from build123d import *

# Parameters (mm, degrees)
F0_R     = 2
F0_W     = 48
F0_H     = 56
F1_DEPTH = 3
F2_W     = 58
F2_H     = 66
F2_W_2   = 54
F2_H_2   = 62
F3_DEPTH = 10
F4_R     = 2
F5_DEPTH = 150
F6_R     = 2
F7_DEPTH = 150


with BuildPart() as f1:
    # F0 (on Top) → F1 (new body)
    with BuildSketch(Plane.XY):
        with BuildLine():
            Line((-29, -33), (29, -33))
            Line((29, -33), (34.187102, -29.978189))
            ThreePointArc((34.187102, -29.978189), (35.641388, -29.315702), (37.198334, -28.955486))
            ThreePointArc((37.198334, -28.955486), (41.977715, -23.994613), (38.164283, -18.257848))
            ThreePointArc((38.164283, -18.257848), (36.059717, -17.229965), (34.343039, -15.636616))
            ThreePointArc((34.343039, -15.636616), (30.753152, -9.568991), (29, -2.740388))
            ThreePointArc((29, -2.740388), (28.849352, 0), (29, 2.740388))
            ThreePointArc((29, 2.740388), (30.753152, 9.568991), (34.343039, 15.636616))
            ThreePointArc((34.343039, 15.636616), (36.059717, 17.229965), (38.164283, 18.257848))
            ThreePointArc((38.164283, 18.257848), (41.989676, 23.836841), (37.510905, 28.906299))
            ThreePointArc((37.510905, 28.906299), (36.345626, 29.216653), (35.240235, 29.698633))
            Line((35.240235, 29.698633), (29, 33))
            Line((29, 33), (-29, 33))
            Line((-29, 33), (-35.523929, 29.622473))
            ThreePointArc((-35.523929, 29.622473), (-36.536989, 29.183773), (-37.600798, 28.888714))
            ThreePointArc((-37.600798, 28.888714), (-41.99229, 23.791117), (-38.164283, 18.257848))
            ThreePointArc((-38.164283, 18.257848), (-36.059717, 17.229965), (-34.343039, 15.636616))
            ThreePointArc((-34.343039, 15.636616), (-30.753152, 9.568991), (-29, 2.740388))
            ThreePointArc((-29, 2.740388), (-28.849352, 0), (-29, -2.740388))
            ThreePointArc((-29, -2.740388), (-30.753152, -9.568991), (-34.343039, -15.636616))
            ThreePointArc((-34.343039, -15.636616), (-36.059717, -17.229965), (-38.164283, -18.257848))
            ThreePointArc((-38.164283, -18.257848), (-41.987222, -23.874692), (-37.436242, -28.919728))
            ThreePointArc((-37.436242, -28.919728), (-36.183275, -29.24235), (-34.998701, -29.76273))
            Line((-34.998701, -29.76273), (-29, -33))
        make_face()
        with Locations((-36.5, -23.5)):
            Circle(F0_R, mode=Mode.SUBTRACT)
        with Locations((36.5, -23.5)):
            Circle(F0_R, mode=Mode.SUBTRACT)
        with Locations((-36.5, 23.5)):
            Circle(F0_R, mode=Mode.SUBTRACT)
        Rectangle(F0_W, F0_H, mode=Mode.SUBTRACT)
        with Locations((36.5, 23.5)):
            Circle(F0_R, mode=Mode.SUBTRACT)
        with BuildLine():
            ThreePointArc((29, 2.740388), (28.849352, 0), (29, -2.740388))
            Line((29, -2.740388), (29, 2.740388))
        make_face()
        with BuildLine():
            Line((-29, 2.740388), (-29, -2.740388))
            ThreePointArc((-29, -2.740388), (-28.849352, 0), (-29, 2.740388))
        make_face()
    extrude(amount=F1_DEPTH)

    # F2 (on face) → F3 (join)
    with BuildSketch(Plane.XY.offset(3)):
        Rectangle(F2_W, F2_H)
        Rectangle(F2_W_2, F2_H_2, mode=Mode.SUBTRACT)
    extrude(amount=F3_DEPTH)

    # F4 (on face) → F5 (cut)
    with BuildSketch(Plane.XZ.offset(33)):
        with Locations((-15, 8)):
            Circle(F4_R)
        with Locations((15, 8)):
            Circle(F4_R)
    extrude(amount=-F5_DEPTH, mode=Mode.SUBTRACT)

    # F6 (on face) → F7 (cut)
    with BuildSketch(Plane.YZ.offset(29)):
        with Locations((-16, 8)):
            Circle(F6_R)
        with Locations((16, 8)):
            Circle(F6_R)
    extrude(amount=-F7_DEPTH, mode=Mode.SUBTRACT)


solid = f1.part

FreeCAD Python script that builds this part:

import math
import FreeCAD as App
import Part
import Sketcher
from FreeCAD import Vector


def add_polygon(sketch, points):
    """Adds a closed chain of lines whose ends are joined by coincident constraints."""
    first, n = sketch.GeometryCount, len(points)
    for a, b in zip(points, points[1:] + points[:1]):
        sketch.addGeometry(Part.LineSegment(App.Vector(*a, 0), App.Vector(*b, 0)), False)
    for i in range(n):
        sketch.addConstraint(Sketcher.Constraint("Coincident", first + i, 2, first + (i + 1) % n, 1))

doc = App.newDocument("Part")
body = doc.addObject("PartDesign::Body", "Body")

# Sketch on XY plane
sketch1 = body.newObject("Sketcher::SketchObject", "Sketch")
sketch1.AttachmentSupport = (doc.getObject("XY_Plane"), [""])
sketch1.MapMode = "FlatFace"
sketch1.addGeometry(Part.LineSegment(Vector(-29, -33, 0), Vector(29, -33, 0)), False)  # 0
sketch1.addGeometry(Part.LineSegment(Vector(29, -33, 0), Vector(34.187102, -29.978189, 0)), False)  # 1
sketch1.addGeometry(Part.ArcOfCircle(Part.Circle(Vector(38.214102, -36.890765, 0), Vector(0, 0, 1), 8.000027), math.radians(97.294569), math.radians(120.223429)), False)  # 2
sketch1.addGeometry(Part.ArcOfCircle(Part.Circle(Vector(36.500001, -23.5, 0), Vector(0, 0, 1), 5.5), math.radians(-82.705483), math.radians(72.386361)), False)  # 3
sketch1.addGeometry(Part.ArcOfCircle(Part.Circle(Vector(40.58506, -10.632899, 0), Vector(0, 0, 1), 8.000001), math.radians(-141.283704), math.radians(-107.613658)), False)  # 4
sketch1.addGeometry(Part.ArcOfCircle(Part.Circle(Vector(53.849338, -0.000005, 0), Vector(0, 0, 1), 24.999986), math.radians(-173.706856), math.radians(-141.283691)), False)  # 5
sketch1.addGeometry(Part.LineSegment(Vector(29, -2.740388, 0), Vector(29, 2.740388, 0)), False)  # 6
sketch1.addGeometry(Part.ArcOfCircle(Part.Circle(Vector(53.849338, 0.000005, 0), Vector(0, 0, 1), 24.999986), math.radians(141.283691), math.radians(173.706856)), False)  # 7
sketch1.addGeometry(Part.ArcOfCircle(Part.Circle(Vector(40.58506, 10.632899, 0), Vector(0, 0, 1), 8.000001), math.radians(107.613658), math.radians(141.283704)), False)  # 8
sketch1.addGeometry(Part.ArcOfCircle(Part.Circle(Vector(36.500001, 23.5, 0), Vector(0, 0, 1), 5.499999), math.radians(-72.386362), math.radians(79.408778)), False)  # 9
sketch1.addGeometry(Part.ArcOfCircle(Part.Circle(Vector(38.981308, 36.769988, 0), Vector(0, 0, 1), 7.99998), math.radians(-117.880907), math.radians(-100.591227)), False)  # 10
sketch1.addGeometry(Part.LineSegment(Vector(35.240235, 29.698633, 0), Vector(29, 33, 0)), False)  # 11
sketch1.addGeometry(Part.LineSegment(Vector(29, 33, 0), Vector(-29, 33, 0)), False)  # 12
sketch1.addGeometry(Part.LineSegment(Vector(-29, 33, 0), Vector(-35.523929, 29.622473, 0)), False)  # 13
sketch1.addGeometry(Part.ArcOfCircle(Part.Circle(Vector(-39.201982, 36.726905, 0), Vector(0, 0, 1), 8.000065), math.radians(-78.454479), math.radians(-62.628834)), False)  # 14
sketch1.addGeometry(Part.ArcOfCircle(Part.Circle(Vector(-36.5, 23.5, 0), Vector(0, 0, 1), 5.499999), math.radians(101.54544), math.radians(252.386356)), False)  # 15
sketch1.addGeometry(Part.ArcOfCircle(Part.Circle(Vector(-40.58506, 10.632899, 0), Vector(0, 0, 1), 8.000001), math.radians(38.716296), math.radians(72.386342)), False)  # 16
sketch1.addGeometry(Part.ArcOfCircle(Part.Circle(Vector(-53.849338, 0.000005, 0), Vector(0, 0, 1), 24.999986), math.radians(6.293144), math.radians(38.716309)), False)  # 17
sketch1.addGeometry(Part.LineSegment(Vector(-29, 2.740388, 0), Vector(-29, -2.740388, 0)), False)  # 18
sketch1.addGeometry(Part.ArcOfCircle(Part.Circle(Vector(-53.849338, -0.000005, 0), Vector(0, 0, 1), 24.999986), math.radians(-38.716309), math.radians(-6.293144)), False)  # 19
sketch1.addGeometry(Part.ArcOfCircle(Part.Circle(Vector(-40.58506, -10.632899, 0), Vector(0, 0, 1), 8.000001), math.radians(-72.386342), math.radians(-38.716296)), False)  # 20
sketch1.addGeometry(Part.ArcOfCircle(Part.Circle(Vector(-36.5, -23.5, 0), Vector(0, 0, 1), 5.5), math.radians(107.613646), math.radians(260.199052)), False)  # 21
sketch1.addGeometry(Part.ArcOfCircle(Part.Circle(Vector(-38.798058, -36.802996, 0), Vector(0, 0, 1), 8.000029), math.radians(61.645996), math.radians(80.19902)), False)  # 22
sketch1.addGeometry(Part.LineSegment(Vector(-34.998701, -29.76273, 0), Vector(-29, -33, 0)), False)  # 23
sketch1.addGeometry(Part.Circle(Vector(-36.5, -23.5, 0), Vector(0, 0, 1), 2), False)  # 24
sketch1.addGeometry(Part.Circle(Vector(36.5, -23.5, 0), Vector(0, 0, 1), 2), False)  # 25
sketch1.addGeometry(Part.Circle(Vector(-36.5, 23.5, 0), Vector(0, 0, 1), 2), False)  # 26
add_polygon(sketch1, [(24, -28), (-24, -28), (-24, 28), (24, 28)])  # lines 27-30
sketch1.addGeometry(Part.Circle(Vector(36.5, 23.5, 0), Vector(0, 0, 1), 2), False)  # 31
sketch1.addConstraint([
    Sketcher.Constraint("Coincident", 0, 2, 1, 1),
    Sketcher.Constraint("Coincident", 1, 2, 2, 2),
    Sketcher.Constraint("Coincident", 2, 1, 3, 1),
    Sketcher.Constraint("Coincident", 3, 2, 4, 2),
    Sketcher.Constraint("Coincident", 4, 1, 5, 2),
    Sketcher.Constraint("Coincident", 5, 1, 6, 1),
    Sketcher.Constraint("Coincident", 6, 2, 7, 2),
    Sketcher.Constraint("Coincident", 7, 1, 8, 2),
    Sketcher.Constraint("Coincident", 8, 1, 9, 1),
    Sketcher.Constraint("Coincident", 9, 2, 10, 2),
    Sketcher.Constraint("Coincident", 10, 1, 11, 1),
    Sketcher.Constraint("Coincident", 11, 2, 12, 1),
    Sketcher.Constraint("Coincident", 12, 2, 13, 1),
    Sketcher.Constraint("Coincident", 13, 2, 14, 2),
    Sketcher.Constraint("Coincident", 14, 1, 15, 1),
    Sketcher.Constraint("Coincident", 15, 2, 16, 2),
    Sketcher.Constraint("Coincident", 16, 1, 17, 2),
    Sketcher.Constraint("Coincident", 17, 1, 18, 1),
    Sketcher.Constraint("Coincident", 18, 2, 19, 2),
    Sketcher.Constraint("Coincident", 19, 1, 20, 2),
    Sketcher.Constraint("Coincident", 20, 1, 21, 1),
    Sketcher.Constraint("Coincident", 21, 2, 22, 2),
    Sketcher.Constraint("Coincident", 22, 1, 23, 1),
    Sketcher.Constraint("Coincident", 23, 2, 0, 1),
    Sketcher.Constraint("Horizontal", 0),
    Sketcher.Constraint("Vertical", 6),
    Sketcher.Constraint("Horizontal", 12),
    Sketcher.Constraint("Vertical", 18),
    Sketcher.Constraint("Horizontal", 27),
    Sketcher.Constraint("Vertical", 28),
    Sketcher.Constraint("Horizontal", 29),
    Sketcher.Constraint("Vertical", 30),
    Sketcher.Constraint("Coincident", 24, 3, 21, 3),
    Sketcher.Constraint("Coincident", 25, 3, 3, 3),
    Sketcher.Constraint("Coincident", 26, 3, 15, 3),
    Sketcher.Constraint("Coincident", 31, 3, 9, 3),
    Sketcher.Constraint("Diameter", 24, 4.0),
    Sketcher.Constraint("Diameter", 25, 4.0),
    Sketcher.Constraint("Diameter", 26, 4.0),
    Sketcher.Constraint("Diameter", 31, 4.0),
    Sketcher.Constraint("Radius", 4, 8.000001),
    Sketcher.Constraint("Radius", 8, 8.000001),
    Sketcher.Constraint("Radius", 16, 8.000001),
    Sketcher.Constraint("Radius", 20, 8.000001),
    Sketcher.Constraint("Radius", 3, 5.5),
    Sketcher.Constraint("Radius", 9, 5.499999),
    Sketcher.Constraint("Radius", 15, 5.499999),
    Sketcher.Constraint("Radius", 21, 5.5),
    Sketcher.Constraint("DistanceX", 0, 1, 0, 2, 58.0),
    Sketcher.Constraint("DistanceX", 12, 2, 12, 1, 58.0),
    Sketcher.Constraint("DistanceX", 27, 2, 27, 1, 48.0),
    Sketcher.Constraint("DistanceY", 28, 1, 28, 2, 56.0),
    Sketcher.Constraint("DistanceX", -1, 1, 0, 2, 29.0),
    Sketcher.Constraint("DistanceY", 0, 2, -1, 1, 33.0),
    Sketcher.Constraint("DistanceX", -1, 1, 5, 1, 29.0),
    Sketcher.Constraint("DistanceX", -1, 1, 11, 2, 29.0),
    Sketcher.Constraint("DistanceY", -1, 1, 11, 2, 33.0),
    Sketcher.Constraint("DistanceX", 17, 1, -1, 1, 29.0),
    Sketcher.Constraint("DistanceX", 27, 2, -1, 1, 24.0),
    Sketcher.Constraint("DistanceY", 27, 2, -1, 1, 28.0),
    Sketcher.Constraint("DistanceY", 3, 3, 9, 3, 47.0),
    Sketcher.Constraint("DistanceX", 15, 3, 9, 3, 73.000001),
    Sketcher.Constraint("DistanceY", 21, 3, 15, 3, 47.0),
    Sketcher.Constraint("DistanceX", -1, 1, 3, 3, 36.500001),
    Sketcher.Constraint("DistanceY", 3, 3, -1, 1, 23.5),
    Sketcher.Constraint("DistanceX", -1, 1, 9, 3, 36.500001),
    Sketcher.Constraint("DistanceY", -1, 1, 15, 3, 23.5),
    Sketcher.Constraint("DistanceX", 21, 3, -1, 1, 36.5),
    Sketcher.Constraint("Radius", 10, 7.99998),
    Sketcher.Constraint("Radius", 22, 8.000029),
    Sketcher.Constraint("Radius", 2, 8.000027),
    Sketcher.Constraint("Radius", 5, 24.999986),
    Sketcher.Constraint("Radius", 7, 24.999986),
    Sketcher.Constraint("Radius", 14, 8.000065),
    Sketcher.Constraint("Radius", 17, 24.999986),
    Sketcher.Constraint("Radius", 19, 24.999986),
    Sketcher.Constraint("DistanceY", 22, 3, 17, 3, 36.803001),
    Sketcher.Constraint("DistanceX", 1, 2, 2, 3, 4.027),
    Sketcher.Constraint("DistanceY", 4, 3, -1, 1, 10.632899),
    Sketcher.Constraint("DistanceY", -1, 1, 8, 3, 10.632899),
    Sketcher.Constraint("DistanceY", -1, 1, 16, 3, 10.632899),
    Sketcher.Constraint("DistanceY", 20, 3, -1, 1, 10.632899),
    Sketcher.Constraint("DistanceY", -1, 1, 9, 2, 28.906299),
    Sketcher.Constraint("DistanceX", 22, 1, -1, 1, 34.998701),
    Sketcher.Constraint("DistanceX", 3, 3, 2, 3, 1.714101),
    Sketcher.Constraint("DistanceY", 17, 3, 14, 3, 36.7269),
    Sketcher.Constraint("DistanceY", 16, 1, 14, 1, 13.252098),
    Sketcher.Constraint("DistanceY", 6, 1, 6, 2, 5.480776),
    Sketcher.Constraint("DistanceY", 18, 2, 18, 1, 5.480776),
    Sketcher.Constraint("DistanceX", -1, 1, 5, 3, 53.849338),
    Sketcher.Constraint("DistanceX", -1, 1, 10, 3, 38.981308),
    Sketcher.Constraint("DistanceX", 17, 3, -1, 1, 53.849338),
    Sketcher.Constraint("DistanceX", -1, 1, 4, 1, 34.343039),
    Sketcher.Constraint("DistanceX", -1, 1, 7, 1, 34.343039),
    Sketcher.Constraint("DistanceX", 13, 2, -1, 1, 35.523929),
    Sketcher.Constraint("DistanceY", -1, 1, 15, 2, 18.257848),
    Sketcher.Constraint("DistanceX", 16, 1, -1, 1, 34.343039),
    Sketcher.Constraint("DistanceX", 19, 1, -1, 1, 34.343039),
    Sketcher.Constraint("DistanceX", 21, 2, -1, 1, 37.436242),
    Sketcher.Constraint("DistanceX", 1, 2, 2, 1, 3.011232),
    Sketcher.Constraint("DistanceY", 3, 2, 4, 3, 7.624949),
    Sketcher.Constraint("DistanceY", 7, 1, 8, 1, 2.621232),
    Sketcher.Constraint("DistanceX", 10, 1, 9, 2, 2.27067),
    Sketcher.Constraint("DistanceY", 20, 1, 19, 1, 2.621232),
])
pad1 = body.newObject("PartDesign::Pad", "Pad")
pad1.Profile = sketch1
pad1.Length = 3

# Sketch on XY plane
sketch2 = body.newObject("Sketcher::SketchObject", "Sketch001")
sketch2.AttachmentSupport = (doc.getObject("XY_Plane"), [""])
sketch2.MapMode = "FlatFace"
sketch2.AttachmentOffset = App.Placement(Vector(0, 0, 3), App.Rotation())
add_polygon(sketch2, [(-29, 33), (-29, -33), (29, -33), (29, 33)])  # lines 0-3
add_polygon(sketch2, [(27, -31), (-27, -31), (-27, 31), (27, 31)])  # lines 4-7
sketch2.addConstraint([
    Sketcher.Constraint("Vertical", 0),
    Sketcher.Constraint("Horizontal", 1),
    Sketcher.Constraint("Vertical", 2),
    Sketcher.Constraint("Horizontal", 3),
    Sketcher.Constraint("Horizontal", 4),
    Sketcher.Constraint("Vertical", 5),
    Sketcher.Constraint("Horizontal", 6),
    Sketcher.Constraint("Vertical", 7),
    Sketcher.Constraint("Symmetric", 0, 2, 2, 2, -1, 1),
    Sketcher.Constraint("Symmetric", 4, 2, 6, 2, -1, 1),
    Sketcher.Constraint("DistanceX", 1, 1, 1, 2, 58.0),
    Sketcher.Constraint("DistanceX", 4, 2, 4, 1, 54.0),
    Sketcher.Constraint("DistanceY", 0, 2, 0, 1, 66.0),
    Sketcher.Constraint("DistanceY", 5, 1, 5, 2, 62.0),
])
pad2 = body.newObject("PartDesign::Pad", "Pad001")
pad2.Profile = sketch2
pad2.Length = 10

# Sketch on XZ plane
sketch3 = body.newObject("Sketcher::SketchObject", "Sketch002")
sketch3.AttachmentSupport = (doc.getObject("XZ_Plane"), [""])
sketch3.MapMode = "FlatFace"
sketch3.AttachmentOffset = App.Placement(Vector(0, 0, 33), App.Rotation())
sketch3.addGeometry([
    Part.Circle(Vector(-15, 8, 0), Vector(0, 0, 1), 2),
    Part.Circle(Vector(15, 8, 0), Vector(0, 0, 1), 2),
], False)
sketch3.addConstraint([
    Sketcher.Constraint("Equal", 0, 1),
    Sketcher.Constraint("Symmetric", 0, 3, 1, 3, -2),
    Sketcher.Constraint("Diameter", 0, 4.0),
    Sketcher.Constraint("DistanceX", 0, 3, -1, 1, 15.0),
    Sketcher.Constraint("DistanceY", -1, 1, 0, 3, 8.0),
])
pocket1 = body.newObject("PartDesign::Pocket", "Pocket")
pocket1.Profile = sketch3
pocket1.Length = 150

# Sketch on YZ plane
sketch4 = body.newObject("Sketcher::SketchObject", "Sketch003")
sketch4.AttachmentSupport = (doc.getObject("YZ_Plane"), [""])
sketch4.MapMode = "FlatFace"
sketch4.AttachmentOffset = App.Placement(Vector(0, 0, 29), App.Rotation())
sketch4.addGeometry([
    Part.Circle(Vector(-16, 8, 0), Vector(0, 0, 1), 2),
    Part.Circle(Vector(16, 8, 0), Vector(0, 0, 1), 2),
], False)
sketch4.addConstraint([
    Sketcher.Constraint("Equal", 0, 1),
    Sketcher.Constraint("Symmetric", 0, 3, 1, 3, -2),
    Sketcher.Constraint("Diameter", 0, 4.0),
    Sketcher.Constraint("DistanceX", 0, 3, -1, 1, 16.0),
    Sketcher.Constraint("DistanceY", -1, 1, 0, 3, 8.0),
])
pocket2 = body.newObject("PartDesign::Pocket", "Pocket001")
pocket2.Profile = sketch4
pocket2.Length = 150

doc.recompute()
